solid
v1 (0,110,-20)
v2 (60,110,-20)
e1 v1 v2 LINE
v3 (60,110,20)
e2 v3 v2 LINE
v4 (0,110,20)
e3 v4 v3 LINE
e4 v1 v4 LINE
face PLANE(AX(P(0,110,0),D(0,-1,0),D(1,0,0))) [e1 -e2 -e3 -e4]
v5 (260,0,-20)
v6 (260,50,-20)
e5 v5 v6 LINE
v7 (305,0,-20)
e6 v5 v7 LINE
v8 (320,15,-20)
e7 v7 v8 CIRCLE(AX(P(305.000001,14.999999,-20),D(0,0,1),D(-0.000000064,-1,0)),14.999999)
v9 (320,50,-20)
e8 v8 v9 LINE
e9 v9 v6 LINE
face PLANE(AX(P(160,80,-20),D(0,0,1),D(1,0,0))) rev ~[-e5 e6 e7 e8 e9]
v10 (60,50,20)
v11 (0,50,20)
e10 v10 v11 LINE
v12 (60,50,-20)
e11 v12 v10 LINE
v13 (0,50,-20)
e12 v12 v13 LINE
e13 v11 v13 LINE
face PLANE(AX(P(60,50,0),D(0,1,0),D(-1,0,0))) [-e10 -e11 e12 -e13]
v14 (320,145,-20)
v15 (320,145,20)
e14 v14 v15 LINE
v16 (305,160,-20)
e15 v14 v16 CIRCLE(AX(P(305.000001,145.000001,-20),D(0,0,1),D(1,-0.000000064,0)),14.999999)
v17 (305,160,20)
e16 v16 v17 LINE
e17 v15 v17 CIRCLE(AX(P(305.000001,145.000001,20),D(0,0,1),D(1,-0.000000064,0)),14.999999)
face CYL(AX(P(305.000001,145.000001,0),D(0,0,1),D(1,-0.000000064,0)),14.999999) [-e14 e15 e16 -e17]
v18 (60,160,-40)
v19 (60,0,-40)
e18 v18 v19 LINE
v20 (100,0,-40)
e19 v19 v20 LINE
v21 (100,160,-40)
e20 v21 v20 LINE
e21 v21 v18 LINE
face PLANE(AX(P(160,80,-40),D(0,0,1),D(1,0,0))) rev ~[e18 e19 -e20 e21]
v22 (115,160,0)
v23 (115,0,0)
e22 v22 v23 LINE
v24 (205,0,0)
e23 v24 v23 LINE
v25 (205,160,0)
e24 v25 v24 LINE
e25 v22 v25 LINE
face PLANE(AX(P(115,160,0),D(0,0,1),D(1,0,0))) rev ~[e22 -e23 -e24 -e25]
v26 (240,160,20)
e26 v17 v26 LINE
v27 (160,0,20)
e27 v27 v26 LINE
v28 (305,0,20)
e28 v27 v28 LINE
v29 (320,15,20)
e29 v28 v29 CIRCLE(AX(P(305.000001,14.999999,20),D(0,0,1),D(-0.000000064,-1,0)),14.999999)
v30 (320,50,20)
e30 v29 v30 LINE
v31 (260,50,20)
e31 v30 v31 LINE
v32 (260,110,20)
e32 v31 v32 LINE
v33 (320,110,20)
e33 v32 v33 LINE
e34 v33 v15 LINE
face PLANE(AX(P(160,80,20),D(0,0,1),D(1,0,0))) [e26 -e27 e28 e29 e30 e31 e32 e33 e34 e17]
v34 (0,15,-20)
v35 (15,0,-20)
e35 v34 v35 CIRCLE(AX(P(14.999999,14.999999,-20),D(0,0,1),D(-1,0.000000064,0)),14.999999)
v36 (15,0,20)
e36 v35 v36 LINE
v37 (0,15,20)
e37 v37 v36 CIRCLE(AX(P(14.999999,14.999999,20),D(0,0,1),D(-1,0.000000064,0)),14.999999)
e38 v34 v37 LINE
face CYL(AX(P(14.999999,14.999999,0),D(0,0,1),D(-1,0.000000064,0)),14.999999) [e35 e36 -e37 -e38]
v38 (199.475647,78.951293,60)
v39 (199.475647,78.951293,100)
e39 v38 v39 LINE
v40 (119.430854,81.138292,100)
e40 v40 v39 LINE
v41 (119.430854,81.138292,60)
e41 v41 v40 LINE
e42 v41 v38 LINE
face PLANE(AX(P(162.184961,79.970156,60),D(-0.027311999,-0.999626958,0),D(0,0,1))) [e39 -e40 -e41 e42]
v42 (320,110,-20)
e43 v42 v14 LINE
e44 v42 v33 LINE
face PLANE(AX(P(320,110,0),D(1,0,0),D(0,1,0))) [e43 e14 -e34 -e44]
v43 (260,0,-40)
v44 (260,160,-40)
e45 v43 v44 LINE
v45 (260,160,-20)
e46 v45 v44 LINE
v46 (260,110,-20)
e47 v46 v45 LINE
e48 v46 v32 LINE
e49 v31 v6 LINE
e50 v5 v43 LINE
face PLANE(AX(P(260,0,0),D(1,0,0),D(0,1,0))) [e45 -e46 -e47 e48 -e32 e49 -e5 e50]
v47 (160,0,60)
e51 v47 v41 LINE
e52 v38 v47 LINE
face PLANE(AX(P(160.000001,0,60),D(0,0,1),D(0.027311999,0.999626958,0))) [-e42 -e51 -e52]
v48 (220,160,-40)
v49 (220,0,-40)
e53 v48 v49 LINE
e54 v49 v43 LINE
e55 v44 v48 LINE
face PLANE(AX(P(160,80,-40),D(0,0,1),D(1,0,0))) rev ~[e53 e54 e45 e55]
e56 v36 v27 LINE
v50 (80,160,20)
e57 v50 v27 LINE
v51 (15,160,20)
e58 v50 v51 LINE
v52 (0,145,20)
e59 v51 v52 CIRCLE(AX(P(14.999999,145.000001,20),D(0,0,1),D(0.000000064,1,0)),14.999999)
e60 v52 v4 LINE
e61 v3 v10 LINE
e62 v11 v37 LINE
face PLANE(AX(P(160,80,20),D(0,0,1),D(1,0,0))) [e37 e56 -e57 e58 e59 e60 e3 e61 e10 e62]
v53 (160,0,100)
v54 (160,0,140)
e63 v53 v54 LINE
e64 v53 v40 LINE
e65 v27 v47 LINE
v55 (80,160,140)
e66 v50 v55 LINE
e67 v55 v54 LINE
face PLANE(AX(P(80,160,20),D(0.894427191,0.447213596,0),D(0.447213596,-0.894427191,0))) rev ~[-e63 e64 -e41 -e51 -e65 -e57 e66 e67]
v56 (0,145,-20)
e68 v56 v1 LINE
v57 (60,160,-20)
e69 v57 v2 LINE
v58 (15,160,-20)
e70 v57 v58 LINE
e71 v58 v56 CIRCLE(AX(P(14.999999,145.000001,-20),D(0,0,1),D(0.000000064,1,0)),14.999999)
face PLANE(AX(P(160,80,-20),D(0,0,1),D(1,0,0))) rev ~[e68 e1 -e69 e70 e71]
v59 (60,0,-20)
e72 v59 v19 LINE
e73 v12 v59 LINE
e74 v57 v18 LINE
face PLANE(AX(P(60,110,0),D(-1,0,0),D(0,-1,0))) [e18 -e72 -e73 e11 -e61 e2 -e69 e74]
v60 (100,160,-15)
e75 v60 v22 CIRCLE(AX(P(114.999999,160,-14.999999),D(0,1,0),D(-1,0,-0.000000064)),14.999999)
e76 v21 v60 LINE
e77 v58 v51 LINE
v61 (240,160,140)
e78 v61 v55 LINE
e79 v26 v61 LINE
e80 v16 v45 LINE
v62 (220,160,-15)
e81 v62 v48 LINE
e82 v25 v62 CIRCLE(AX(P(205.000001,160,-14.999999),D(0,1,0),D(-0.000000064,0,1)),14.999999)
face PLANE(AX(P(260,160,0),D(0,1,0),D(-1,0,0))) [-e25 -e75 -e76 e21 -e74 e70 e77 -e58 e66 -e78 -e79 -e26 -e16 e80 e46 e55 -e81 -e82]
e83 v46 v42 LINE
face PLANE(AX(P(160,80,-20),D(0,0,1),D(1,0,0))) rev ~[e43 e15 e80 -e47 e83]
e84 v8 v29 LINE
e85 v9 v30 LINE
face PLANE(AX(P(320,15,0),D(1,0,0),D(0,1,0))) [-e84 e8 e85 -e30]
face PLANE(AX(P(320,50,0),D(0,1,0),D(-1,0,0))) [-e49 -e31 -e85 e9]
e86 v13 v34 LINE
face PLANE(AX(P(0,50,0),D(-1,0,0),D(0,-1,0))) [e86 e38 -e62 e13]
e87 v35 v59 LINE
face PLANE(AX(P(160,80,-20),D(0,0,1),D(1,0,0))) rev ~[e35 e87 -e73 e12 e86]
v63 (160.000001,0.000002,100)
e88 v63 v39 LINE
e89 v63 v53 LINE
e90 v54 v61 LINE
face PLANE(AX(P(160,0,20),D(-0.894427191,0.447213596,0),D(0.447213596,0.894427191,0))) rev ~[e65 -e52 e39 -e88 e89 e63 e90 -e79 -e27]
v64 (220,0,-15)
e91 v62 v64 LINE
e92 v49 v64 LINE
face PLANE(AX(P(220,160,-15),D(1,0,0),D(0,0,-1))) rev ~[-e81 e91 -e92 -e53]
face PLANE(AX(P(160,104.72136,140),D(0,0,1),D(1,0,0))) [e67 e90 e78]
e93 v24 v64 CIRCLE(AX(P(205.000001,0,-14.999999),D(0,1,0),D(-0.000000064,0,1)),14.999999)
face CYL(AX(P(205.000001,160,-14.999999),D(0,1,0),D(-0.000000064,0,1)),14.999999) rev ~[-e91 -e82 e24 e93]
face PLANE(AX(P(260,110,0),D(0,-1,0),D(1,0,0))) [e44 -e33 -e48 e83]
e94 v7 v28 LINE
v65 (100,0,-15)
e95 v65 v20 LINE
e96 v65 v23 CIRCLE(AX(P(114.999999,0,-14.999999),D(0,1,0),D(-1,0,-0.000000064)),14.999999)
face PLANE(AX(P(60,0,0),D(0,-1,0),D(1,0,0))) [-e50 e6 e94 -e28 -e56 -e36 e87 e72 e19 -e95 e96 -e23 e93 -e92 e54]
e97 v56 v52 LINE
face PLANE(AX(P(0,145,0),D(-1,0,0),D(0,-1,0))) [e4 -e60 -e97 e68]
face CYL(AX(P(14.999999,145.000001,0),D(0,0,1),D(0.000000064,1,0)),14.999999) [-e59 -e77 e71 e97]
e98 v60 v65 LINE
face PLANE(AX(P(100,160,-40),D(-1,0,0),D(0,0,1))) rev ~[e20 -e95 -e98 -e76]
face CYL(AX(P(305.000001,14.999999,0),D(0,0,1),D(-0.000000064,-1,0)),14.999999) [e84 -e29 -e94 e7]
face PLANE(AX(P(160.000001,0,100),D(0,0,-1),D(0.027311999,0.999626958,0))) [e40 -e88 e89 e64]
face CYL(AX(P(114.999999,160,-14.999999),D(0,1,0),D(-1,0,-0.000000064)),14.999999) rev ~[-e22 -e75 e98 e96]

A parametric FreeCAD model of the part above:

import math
import FreeCAD as App
import Part
import Sketcher

V = App.Vector
Q = App.Units.Quantity


def add_polygon(sketch, points):
    """Adds a closed chain of lines whose ends are joined by coincident constraints."""
    first, n = sketch.GeometryCount, len(points)
    for a, b in zip(points, points[1:] + points[:1]):
        sketch.addGeometry(Part.LineSegment(App.Vector(*a, 0), App.Vector(*b, 0)), False)
    for i in range(n):
        sketch.addConstraint(Sketcher.Constraint("Coincident", first + i, 2, first + (i + 1) % n, 1))

doc = App.newDocument("Part")
body = doc.addObject("PartDesign::Body", "Body")

# Sketch on XY plane
sketch1 = body.newObject("Sketcher::SketchObject", "Sketch")
sketch1.AttachmentSupport = (doc.getObject("XY_Plane"), [""])
sketch1.MapMode = "FlatFace"
sketch1.addGeometry(Part.LineSegment(V(0, 50, 0), V(0, 15, 0)), False)
sketch1.addGeometry(Part.ArcOfCircle(Part.Circle(V(15, 15, 0), V(0, 0, 1), 15), math.radians(180), math.radians(270)), False)
sketch1.addGeometry(Part.LineSegment(V(15, 0, 0), V(305, 0, 0)), False)
sketch1.addGeometry(Part.ArcOfCircle(Part.Circle(V(305, 15, 0), V(0, 0, 1), 15), math.radians(-90), math.radians(0)), False)
sketch1.addGeometry(Part.LineSegment(V(320, 15, 0), V(320, 50, 0)), False)
sketch1.addGeometry(Part.LineSegment(V(320, 50, 0), V(260, 50, 0)), False)
sketch1.addGeometry(Part.LineSegment(V(260, 50, 0), V(260, 110, 0)), False)
sketch1.addGeometry(Part.LineSegment(V(260, 110, 0), V(320, 110, 0)), False)
sketch1.addGeometry(Part.LineSegment(V(320, 110, 0), V(320, 145, 0)), False)
sketch1.addGeometry(Part.ArcOfCircle(Part.Circle(V(305, 145, 0), V(0, 0, 1), 15), math.radians(0), math.radians(90)), False)
sketch1.addGeometry(Part.LineSegment(V(305, 160, 0), V(15, 160, 0)), False)
sketch1.addGeometry(Part.ArcOfCircle(Part.Circle(V(15, 145, 0), V(0, 0, 1), 15), math.radians(90), math.radians(180)), False)
sketch1.addGeometry(Part.LineSegment(V(0, 145, 0), V(0, 110, 0)), False)
sketch1.addGeometry(Part.LineSegment(V(0, 110, 0), V(60, 110, 0)), False)
sketch1.addGeometry(Part.LineSegment(V(60, 110, 0), V(60, 50, 0)), False)
sketch1.addGeometry(Part.LineSegment(V(60, 50, 0), V(0, 50, 0)), False)
sketch1.addConstraint(Sketcher.Constraint("Tangent", 0, 2, 1, 1))
sketch1.addConstraint(Sketcher.Constraint("Tangent", 1, 2, 2, 1))
sketch1.addConstraint(Sketcher.Constraint("Tangent", 2, 2, 3, 1))
sketch1.addConstraint(Sketcher.Constraint("Tangent", 3, 2, 4, 1))
sketch1.addConstraint(Sketcher.Constraint("Coincident", 4, 2, 5, 1))
sketch1.addConstraint(Sketcher.Constraint("Coincident", 5, 2, 6, 1))
sketch1.addConstraint(Sketcher.Constraint("Coincident", 6, 2, 7, 1))
sketch1.addConstraint(Sketcher.Constraint("Coincident", 7, 2, 8, 1))
sketch1.addConstraint(Sketcher.Constraint("Tangent", 8, 2, 9, 1))
sketch1.addConstraint(Sketcher.Constraint("Tangent", 9, 2, 10, 1))
sketch1.addConstraint(Sketcher.Constraint("Tangent", 10, 2, 11, 1))
sketch1.addConstraint(Sketcher.Constraint("Tangent", 11, 2, 12, 1))
sketch1.addConstraint(Sketcher.Constraint("Coincident", 12, 2, 13, 1))
sketch1.addConstraint(Sketcher.Constraint("Coincident", 13, 2, 14, 1))
sketch1.addConstraint(Sketcher.Constraint("Coincident", 14, 2, 15, 1))
sketch1.addConstraint(Sketcher.Constraint("Coincident", 15, 2, 0, 1))
sketch1.addConstraint(Sketcher.Constraint("Vertical", 0))
sketch1.addConstraint(Sketcher.Constraint("Horizontal", 2))
sketch1.addConstraint(Sketcher.Constraint("Vertical", 4))
sketch1.addConstraint(Sketcher.Constraint("Horizontal", 5))
sketch1.addConstraint(Sketcher.Constraint("Vertical", 6))
sketch1.addConstraint(Sketcher.Constraint("Horizontal", 7))
sketch1.addConstraint(Sketcher.Constraint("Vertical", 8))
sketch1.addConstraint(Sketcher.Constraint("Horizontal", 10))
sketch1.addConstraint(Sketcher.Constraint("Vertical", 12))
sketch1.addConstraint(Sketcher.Constraint("Horizontal", 13))
sketch1.addConstraint(Sketcher.Constraint("Vertical", 14))
sketch1.addConstraint(Sketcher.Constraint("Horizontal", 15))
sketch1.addConstraint(Sketcher.Constraint("Equal", 1, 3))
sketch1.addConstraint(Sketcher.Constraint("Equal", 3, 9))
sketch1.addConstraint(Sketcher.Constraint("Equal", 9, 11))
sketch1.addConstraint(Sketcher.Constraint("PointOnObject", 0, 2, -2))
sketch1.addConstraint(Sketcher.Constraint("PointOnObject", 1, 2, -1))
sketch1.addConstraint(Sketcher.Constraint("PointOnObject", 11, 2, -2))
sketch1.addConstraint(Sketcher.Constraint("Horizontal", 7, 2, 12, 2))
sketch1.addConstraint(Sketcher.Constraint("Horizontal", 5, 2, 14, 2))
sketch1.addConstraint(Sketcher.Constraint("Vertical", 3, 3, 9, 3))
sketch1.addConstraint(Sketcher.Constraint("Equal", 7, 13))
sketch1.addConstraint(Sketcher.Constraint("Equal", 15, 6))
sketch1.addConstraint(Sketcher.Constraint("Equal", 4, 8))
sketch1.addConstraint(Sketcher.Constraint("Radius", 1, Q("14.999999 mm")))
sketch1.addConstraint(Sketcher.Constraint("DistanceX", 2, 1, 2, 2, Q("290 mm")))
sketch1.addConstraint(Sketcher.Constraint("DistanceX", 5, 2, 5, 1, Q("60 mm")))
sketch1.addConstraint(Sketcher.Constraint("DistanceY", 0, 2, 0, 1, Q("35 mm")))
pad1 = body.newObject("PartDesign::Pad", "Pad")
pad1.Profile = sketch1
pad1.Length = 40
pad1.Midplane = True

# Sketch on XY plane
sketch2 = body.newObject("Sketcher::SketchObject", "Sketch001")
sketch2.AttachmentSupport = (doc.getObject("XY_Plane"), [""])
sketch2.MapMode = "FlatFace"
sketch2.AttachmentOffset = App.Placement(V(0, 0, 20), App.Rotation())
add_polygon(sketch2, [(240, 160), (80, 160), (160, 0)])  # lines 0-2
sketch2.addConstraint(Sketcher.Constraint("Horizontal", 0))
sketch2.addConstraint(Sketcher.Constraint("PointOnObject", 1, 2, -1))
sketch2.addConstraint(Sketcher.Constraint("Equal", 1, 2))
sketch2.addConstraint(Sketcher.Constraint("DistanceX", 0, 2, 0, 1, Q("160 mm")))
sketch2.addConstraint(Sketcher.Constraint("DistanceX", -1, 1, 0, 2, Q("80 mm")))
sketch2.addConstraint(Sketcher.Constraint("DistanceY", -1, 1, 0, 2, Q("160 mm")))
pad2 = body.newObject("PartDesign::Pad", "Pad001")
pad2.Profile = sketch2
pad2.Length = 120

# Sketch on XY plane
sketch3 = body.newObject("Sketcher::SketchObject", "Sketch002")
sketch3.AttachmentSupport = (doc.getObject("XY_Plane"), [""])
sketch3.MapMode = "FlatFace"
add_polygon(sketch3, [(60, 0), (260, 0), (260, 160), (60, 160)])  # lines 0-3
sketch3.addConstraint(Sketcher.Constraint("Horizontal", 0))
sketch3.addConstraint(Sketcher.Constraint("Vertical", 1))
sketch3.addConstraint(Sketcher.Constraint("Horizontal", 2))
sketch3.addConstraint(Sketcher.Constraint("Vertical", 3))
sketch3.addConstraint(Sketcher.Constraint("PointOnObject", 0, 2, -1))
sketch3.addConstraint(Sketcher.Constraint("DistanceX", 0, 1, 0, 2, Q("200 mm")))
sketch3.addConstraint(Sketcher.Constraint("DistanceY", 1, 1, 1, 2, Q("160 mm")))
sketch3.addConstraint(Sketcher.Constraint("DistanceX", -1, 1, 0, 2, Q("260 mm")))
pad3 = body.newObject("PartDesign::Pad", "Pad002")
pad3.Profile = sketch3
pad3.Length = 40
pad3.Reversed = True

# Sketch on XZ plane
sketch4 = body.newObject("Sketcher::SketchObject", "Sketch003")
sketch4.AttachmentSupport = (doc.getObject("XZ_Plane"), [""])
sketch4.MapMode = "FlatFace"
sketch4.AttachmentOffset = App.Placement(V(0, 0, -160), App.Rotation())
sketch4.addGeometry(Part.LineSegment(V(220, -40, 0), V(100, -40, 0)), False)
sketch4.addGeometry(Part.LineSegment(V(100, -40, 0), V(100, -15, 0)), False)
sketch4.addGeometry(Part.ArcOfCircle(Part.Circle(V(115, -15, 0), V(0, 0, 1), 15), math.radians(90), math.radians(180)), False)
sketch4.addGeometry(Part.LineSegment(V(115, 0, 0), V(205, 0, 0)), False)
sketch4.addGeometry(Part.ArcOfCircle(Part.Circle(V(205, -15, 0), V(0, 0, 1), 15), math.radians(0), math.radians(90)), False)
sketch4.addGeometry(Part.LineSegment(V(220, -15, 0), V(220, -40, 0)), False)
sketch4.addConstraint(Sketcher.Constraint("Coincident", 0, 2, 1, 1))
sketch4.addConstraint(Sketcher.Constraint("Tangent", 1, 2, 2, 2))
sketch4.addConstraint(Sketcher.Constraint("Tangent", 2, 1, 3, 1))
sketch4.addConstraint(Sketcher.Constraint("Tangent", 3, 2, 4, 2))
sketch4.addConstraint(Sketcher.Constraint("Tangent", 4, 1, 5, 1))
sketch4.addConstraint(Sketcher.Constraint("Coincident", 5, 2, 0, 1))
sketch4.addConstraint(Sketcher.Constraint("Horizontal", 0))
sketch4.addConstraint(Sketcher.Constraint("Vertical", 1))
sketch4.addConstraint(Sketcher.Constraint("Horizontal", 3))
sketch4.addConstraint(Sketcher.Constraint("Vertical", 5))
sketch4.addConstraint(Sketcher.Constraint("Equal", 2, 4))
sketch4.addConstraint(Sketcher.Constraint("PointOnObject", 2, 1, -1))
sketch4.addConstraint(Sketcher.Constraint("Radius", 2, Q("14.999999 mm")))
sketch4.addConstraint(Sketcher.Constraint("DistanceX", 0, 2, 0, 1, Q("120 mm")))
sketch4.addConstraint(Sketcher.Constraint("DistanceY", 1, 1, 1, 2, Q("25 mm")))
sketch4.addConstraint(Sketcher.Constraint("DistanceX", -1, 1, 2, 3, Q("114.999999 mm")))
pocket1 = body.newObject("PartDesign::Pocket", "Pocket")
pocket1.Profile = sketch4
pocket1.Type = "ThroughAll"
pocket1.Reversed = True

# Sketch on an angled plane
sketch5 = body.newObject("Sketcher::SketchObject", "Sketch004")
sketch5.Placement = App.Placement(V(159.88065, -4.368274, 0), App.Rotation(V(0.027311999, 0.999626958, 0), V(0, 0, 1), V(0.999626958, -0.027311999, 0), "ZXY"))
add_polygon(sketch5, [(4, 100), (4, 60), (84, 60), (84, 100)])  # lines 0-3
sketch5.addConstraint(Sketcher.Constraint("Vertical", 0))
sketch5.addConstraint(Sketcher.Constraint("Horizontal", 1))
sketch5.addConstraint(Sketcher.Constraint("Vertical", 2))
sketch5.addConstraint(Sketcher.Constraint("Horizontal", 3))
sketch5.addConstraint(Sketcher.Constraint("DistanceX", 1, 1, 1, 2, Q("80 mm")))
sketch5.addConstraint(Sketcher.Constraint("DistanceY", 0, 2, 0, 1, Q("40 mm")))
sketch5.addConstraint(Sketcher.Constraint("DistanceY", -1, 1, 0, 2, Q("60 mm")))
sketch5.addConstraint(Sketcher.Constraint("DistanceX", -1, 1, 0, 2, Q("4.369904 mm")))
pocket2 = body.newObject("PartDesign::Pocket", "Pocket001")
pocket2.Profile = sketch5
pocket2.Type = "ThroughAll"
pocket2.Midplane = True

doc.recompute()
